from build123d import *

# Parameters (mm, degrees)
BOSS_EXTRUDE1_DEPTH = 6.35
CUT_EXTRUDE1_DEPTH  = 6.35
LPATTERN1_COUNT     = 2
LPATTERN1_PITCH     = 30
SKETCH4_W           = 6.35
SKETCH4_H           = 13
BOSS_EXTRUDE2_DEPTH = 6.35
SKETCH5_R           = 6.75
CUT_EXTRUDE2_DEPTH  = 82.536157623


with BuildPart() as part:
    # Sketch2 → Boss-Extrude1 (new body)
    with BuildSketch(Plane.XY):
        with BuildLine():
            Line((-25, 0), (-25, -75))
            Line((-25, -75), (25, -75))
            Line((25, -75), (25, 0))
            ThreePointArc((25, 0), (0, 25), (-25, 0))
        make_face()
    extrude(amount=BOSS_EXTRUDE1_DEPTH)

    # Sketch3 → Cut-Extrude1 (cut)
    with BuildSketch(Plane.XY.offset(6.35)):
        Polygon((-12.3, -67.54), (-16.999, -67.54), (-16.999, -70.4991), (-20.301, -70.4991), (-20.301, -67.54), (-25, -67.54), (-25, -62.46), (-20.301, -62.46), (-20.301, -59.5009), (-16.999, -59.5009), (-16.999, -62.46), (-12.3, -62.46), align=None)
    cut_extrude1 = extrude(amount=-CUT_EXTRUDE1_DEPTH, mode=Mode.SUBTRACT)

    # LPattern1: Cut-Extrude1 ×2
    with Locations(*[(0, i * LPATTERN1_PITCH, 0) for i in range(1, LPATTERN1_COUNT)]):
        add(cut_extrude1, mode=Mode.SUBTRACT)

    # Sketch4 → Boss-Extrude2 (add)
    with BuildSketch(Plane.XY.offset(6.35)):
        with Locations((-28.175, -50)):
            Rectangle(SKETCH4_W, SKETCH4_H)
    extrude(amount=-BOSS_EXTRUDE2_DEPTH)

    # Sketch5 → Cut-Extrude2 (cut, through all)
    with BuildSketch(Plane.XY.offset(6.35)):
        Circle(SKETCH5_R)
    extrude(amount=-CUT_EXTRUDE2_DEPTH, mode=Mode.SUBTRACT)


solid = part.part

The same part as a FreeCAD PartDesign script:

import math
import FreeCAD as App
import Part
import Sketcher

doc = App.newDocument("Part")
params = doc.addObject("Spreadsheet::Sheet", "Params")
for row, (alias, value) in enumerate([
    ("sketch1_radius", "25 mm"),
    ("sketch1_height", "75 mm"),
    ("pad1_length", "6.35 mm"),
    ("sketch2_height", "5.08 mm"),
    ("pocket1_length", "6.35 mm"),
    ("linearpattern_pitch", "30 mm"),
    ("sketch3_height", "13 mm"),
    ("sketch3_width", "6.35 mm"),
    ("pad2_length", "6.35 mm"),
    ("sketch4_diameter", "13.5 mm"),
], start=1):
    params.set(f"A{row}", alias)
    params.set(f"B{row}", "=" + value)
    params.setAlias(f"B{row}", alias)

body = doc.addObject("PartDesign::Body", "Body")

# Sketch on XY plane
sketch1 = doc.addObject("Sketcher::SketchObject", "Sketch")
body.addObject(sketch1)
sketch1.AttachmentSupport = (doc.XY_Plane, [""])
sketch1.MapMode = "FlatFace"
sketch1.addGeometry([
    Part.LineSegment(App.Vector(-25, 0, 0), App.Vector(-25, -75, 0)),
    Part.LineSegment(App.Vector(-25, -75, 0), App.Vector(25, -75, 0)),
    Part.LineSegment(App.Vector(25, -75, 0), App.Vector(25, 0, 0)),
    Part.ArcOfCircle(Part.Circle(App.Vector(0, 0, 0), App.Vector(0, 0, 1), 25), math.radians(0), math.radians(180)),
], False)
sketch1.addConstraint([
    Sketcher.Constraint("Coincident", 0, 2, 1, 1),
    Sketcher.Constraint("Coincident", 1, 2, 2, 1),
    Sketcher.Constraint("Tangent", 2, 2, 3, 1),
    Sketcher.Constraint("Tangent", 3, 2, 0, 1),
    Sketcher.Constraint("Vertical", 0),
    Sketcher.Constraint("Horizontal", 1),
    Sketcher.Constraint("Vertical", 2),
    Sketcher.Constraint("Coincident", 3, 3, -1, 1),
    Sketcher.Constraint("Radius", 3, 25.0),
    Sketcher.Constraint("DistanceY", 0, 2, 0, 1, 75.0),
])
sketch1.setExpression("Constraints[8]", "Params.sketch1_radius")
sketch1.setExpression("Constraints[9]", "Params.sketch1_height")
pad1 = doc.addObject("PartDesign::Pad", "Pad")
body.addObject(pad1)
pad1.Profile = sketch1
pad1.setExpression("Length", "Params.pad1_length")

# Sketch on XY plane
sketch2 = doc.addObject("Sketcher::SketchObject", "Sketch001")
body.addObject(sketch2)
sketch2.AttachmentSupport = (doc.XY_Plane, [""])
sketch2.MapMode = "FlatFace"
sketch2.AttachmentOffset = App.Placement(App.Vector(0, 0, 6.35), App.Rotation())
sketch2.addGeometry([
    Part.LineSegment(App.Vector(-17, -67.5, 0), App.Vector(-12.3, -67.5, 0)),  # 0
    Part.LineSegment(App.Vector(-12.3, -67.5, 0), App.Vector(-12.3, -62.5, 0)),  # 1
    Part.LineSegment(App.Vector(-12.3, -62.5, 0), App.Vector(-17, -62.5, 0)),  # 2
    Part.LineSegment(App.Vector(-17, -62.5, 0), App.Vector(-17, -59.5, 0)),  # 3
    Part.LineSegment(App.Vector(-17, -59.5, 0), App.Vector(-20.3, -59.5, 0)),  # 4
    Part.LineSegment(App.Vector(-20.3, -59.5, 0), App.Vector(-20.3, -62.5, 0)),  # 5
    Part.LineSegment(App.Vector(-20.3, -62.5, 0), App.Vector(-25, -62.5, 0)),  # 6
    Part.LineSegment(App.Vector(-25, -62.5, 0), App.Vector(-25, -67.5, 0)),  # 7
    Part.LineSegment(App.Vector(-25, -67.5, 0), App.Vector(-20.3, -67.5, 0)),  # 8
    Part.LineSegment(App.Vector(-20.3, -67.5, 0), App.Vector(-20.3, -70.5, 0)),  # 9
    Part.LineSegment(App.Vector(-20.3, -70.5, 0), App.Vector(-17, -70.5, 0)),  # 10
    Part.LineSegment(App.Vector(-17, -70.5, 0), App.Vector(-17, -67.5, 0)),  # 11
], False)
sketch2.addConstraint([
    Sketcher.Constraint("Coincident", 0, 2, 1, 1),
    Sketcher.Constraint("Coincident", 1, 2, 2, 1),
    Sketcher.Constraint("Coincident", 2, 2, 3, 1),
    Sketcher.Constraint("Coincident", 3, 2, 4, 1),
    Sketcher.Constraint("Coincident", 4, 2, 5, 1),
    Sketcher.Constraint("Coincident", 5, 2, 6, 1),
    Sketcher.Constraint("Coincident", 6, 2, 7, 1),
    Sketcher.Constraint("Coincident", 7, 2, 8, 1),
    Sketcher.Constraint("Coincident", 8, 2, 9, 1),
    Sketcher.Constraint("Coincident", 9, 2, 10, 1),
    Sketcher.Constraint("Coincident", 10, 2, 11, 1),
    Sketcher.Constraint("Coincident", 11, 2, 0, 1),
    Sketcher.Constraint("Horizontal", 0),
    Sketcher.Constraint("Vertical", 1),
    Sketcher.Constraint("Horizontal", 2),
    Sketcher.Constraint("Vertical", 3),
    Sketcher.Constraint("Horizontal", 4),
    Sketcher.Constraint("Vertical", 5),
    Sketcher.Constraint("Horizontal", 6),
    Sketcher.Constraint("Vertical", 7),
    Sketcher.Constraint("Horizontal", 8),
    Sketcher.Constraint("Vertical", 9),
    Sketcher.Constraint("Horizontal", 10),
    Sketcher.Constraint("Vertical", 11),
    Sketcher.Constraint("Horizontal", 2, 2, 5, 2),
    Sketcher.Constraint("Horizontal", 0, 2, 7, 2),
    Sketcher.Constraint("Vertical", 5, 2, 8, 2),
    Sketcher.Constraint("Vertical", 3, 2, 10, 2),
    Sketcher.Constraint("Equal", 2, 6),
    Sketcher.Constraint("Equal", 5, 9),
    Sketcher.Constraint("DistanceX", 6, 2, -1, 1, 25.0),
    Sketcher.Constraint("DistanceY", 1, 1, 1, 2, 5.08),
    Sketcher.Constraint("DistanceX", 0, 2, -1, 1, 12.3),
    Sketcher.Constraint("DistanceX", 0, 1, 0, 2, 4.699),
    Sketcher.Constraint("DistanceY", 0, 2, -1, 1, 67.54),
    Sketcher.Constraint("DistanceY", 3, 1, 3, 2, 2.9591),
])
sketch2.setExpression("Constraints[31]", "Params.sketch2_height")
pocket1 = doc.addObject("PartDesign::Pocket", "Pocket")
body.addObject(pocket1)
pocket1.Profile = sketch2
pocket1.setExpression("Length", "Params.pocket1_length")
doc.recompute()

linearpattern = doc.addObject("PartDesign::LinearPattern", "LinearPattern")
body.addObject(linearpattern)
linearpattern.Originals = [pocket1]
linearpattern.Direction = (doc.Y_Axis, [""])
linearpattern.Mode = "offset"
linearpattern.setExpression("Offset", "Params.linearpattern_pitch")
linearpattern.Occurrences = 2
body.Tip = linearpattern

# Sketch on XY plane
sketch3 = doc.addObject("Sketcher::SketchObject", "Sketch002")
body.addObject(sketch3)
sketch3.AttachmentSupport = (doc.XY_Plane, [""])
sketch3.MapMode = "FlatFace"
sketch3.AttachmentOffset = App.Placement(App.Vector(0, 0, 6.35), App.Rotation())
sketch3.addGeometry([
    Part.LineSegment(App.Vector(-31, -44, 0), App.Vector(-31, -56, 0)),
    Part.LineSegment(App.Vector(-31, -56, 0), App.Vector(-25, -56, 0)),
    Part.LineSegment(App.Vector(-25, -56, 0), App.Vector(-25, -44, 0)),
    Part.LineSegment(App.Vector(-25, -44, 0), App.Vector(-31, -44, 0)),
], False)
sketch3.addConstraint([
    Sketcher.Constraint("Coincident", 0, 2, 1, 1),
    Sketcher.Constraint("Coincident", 1, 2, 2, 1),
    Sketcher.Constraint("Coincident", 2, 2, 3, 1),
    Sketcher.Constraint("Coincident", 3, 2, 0, 1),
    Sketcher.Constraint("Vertical", 0),
    Sketcher.Constraint("Horizontal", 1),
    Sketcher.Constraint("Vertical", 2),
    Sketcher.Constraint("Horizontal", 3),
    Sketcher.Constraint("DistanceY", 0, 2, 0, 1, 13.0),
    Sketcher.Constraint("DistanceX", 1, 2, -1, 1, 25.0),
    Sketcher.Constraint("DistanceX", 1, 1, 1, 2, 6.35),
    Sketcher.Constraint("DistanceY", 0, 2, -1, 1, 56.5),
])
sketch3.setExpression("Constraints[8]", "Params.sketch3_height")
sketch3.setExpression("Constraints[10]", "Params.sketch3_width")
pad2 = doc.addObject("PartDesign::Pad", "Pad001")
body.addObject(pad2)
pad2.Profile = sketch3
pad2.setExpression("Length", "Params.pad2_length")
pad2.Reversed = True

# Sketch on XY plane
sketch4 = doc.addObject("Sketcher::SketchObject", "Sketch003")
body.addObject(sketch4)
sketch4.AttachmentSupport = (doc.XY_Plane, [""])
sketch4.MapMode = "FlatFace"
sketch4.AttachmentOffset = App.Placement(App.Vector(0, 0, 6.35), App.Rotation())
sketch4.addGeometry(Part.Circle(App.Vector(0, 0, 0), App.Vector(0, 0, 1), 7), False)
sketch4.addConstraint([
    Sketcher.Constraint("Coincident", 0, 3, -1, 1),
    Sketcher.Constraint("Diameter", 0, 13.5),
])
sketch4.setExpression("Constraints[1]", "Params.sketch4_diameter")
pocket2 = doc.addObject("PartDesign::Pocket", "Pocket001")
body.addObject(pocket2)
pocket2.Profile = sketch4
pocket2.Type = "ThroughAll"

doc.recompute()
